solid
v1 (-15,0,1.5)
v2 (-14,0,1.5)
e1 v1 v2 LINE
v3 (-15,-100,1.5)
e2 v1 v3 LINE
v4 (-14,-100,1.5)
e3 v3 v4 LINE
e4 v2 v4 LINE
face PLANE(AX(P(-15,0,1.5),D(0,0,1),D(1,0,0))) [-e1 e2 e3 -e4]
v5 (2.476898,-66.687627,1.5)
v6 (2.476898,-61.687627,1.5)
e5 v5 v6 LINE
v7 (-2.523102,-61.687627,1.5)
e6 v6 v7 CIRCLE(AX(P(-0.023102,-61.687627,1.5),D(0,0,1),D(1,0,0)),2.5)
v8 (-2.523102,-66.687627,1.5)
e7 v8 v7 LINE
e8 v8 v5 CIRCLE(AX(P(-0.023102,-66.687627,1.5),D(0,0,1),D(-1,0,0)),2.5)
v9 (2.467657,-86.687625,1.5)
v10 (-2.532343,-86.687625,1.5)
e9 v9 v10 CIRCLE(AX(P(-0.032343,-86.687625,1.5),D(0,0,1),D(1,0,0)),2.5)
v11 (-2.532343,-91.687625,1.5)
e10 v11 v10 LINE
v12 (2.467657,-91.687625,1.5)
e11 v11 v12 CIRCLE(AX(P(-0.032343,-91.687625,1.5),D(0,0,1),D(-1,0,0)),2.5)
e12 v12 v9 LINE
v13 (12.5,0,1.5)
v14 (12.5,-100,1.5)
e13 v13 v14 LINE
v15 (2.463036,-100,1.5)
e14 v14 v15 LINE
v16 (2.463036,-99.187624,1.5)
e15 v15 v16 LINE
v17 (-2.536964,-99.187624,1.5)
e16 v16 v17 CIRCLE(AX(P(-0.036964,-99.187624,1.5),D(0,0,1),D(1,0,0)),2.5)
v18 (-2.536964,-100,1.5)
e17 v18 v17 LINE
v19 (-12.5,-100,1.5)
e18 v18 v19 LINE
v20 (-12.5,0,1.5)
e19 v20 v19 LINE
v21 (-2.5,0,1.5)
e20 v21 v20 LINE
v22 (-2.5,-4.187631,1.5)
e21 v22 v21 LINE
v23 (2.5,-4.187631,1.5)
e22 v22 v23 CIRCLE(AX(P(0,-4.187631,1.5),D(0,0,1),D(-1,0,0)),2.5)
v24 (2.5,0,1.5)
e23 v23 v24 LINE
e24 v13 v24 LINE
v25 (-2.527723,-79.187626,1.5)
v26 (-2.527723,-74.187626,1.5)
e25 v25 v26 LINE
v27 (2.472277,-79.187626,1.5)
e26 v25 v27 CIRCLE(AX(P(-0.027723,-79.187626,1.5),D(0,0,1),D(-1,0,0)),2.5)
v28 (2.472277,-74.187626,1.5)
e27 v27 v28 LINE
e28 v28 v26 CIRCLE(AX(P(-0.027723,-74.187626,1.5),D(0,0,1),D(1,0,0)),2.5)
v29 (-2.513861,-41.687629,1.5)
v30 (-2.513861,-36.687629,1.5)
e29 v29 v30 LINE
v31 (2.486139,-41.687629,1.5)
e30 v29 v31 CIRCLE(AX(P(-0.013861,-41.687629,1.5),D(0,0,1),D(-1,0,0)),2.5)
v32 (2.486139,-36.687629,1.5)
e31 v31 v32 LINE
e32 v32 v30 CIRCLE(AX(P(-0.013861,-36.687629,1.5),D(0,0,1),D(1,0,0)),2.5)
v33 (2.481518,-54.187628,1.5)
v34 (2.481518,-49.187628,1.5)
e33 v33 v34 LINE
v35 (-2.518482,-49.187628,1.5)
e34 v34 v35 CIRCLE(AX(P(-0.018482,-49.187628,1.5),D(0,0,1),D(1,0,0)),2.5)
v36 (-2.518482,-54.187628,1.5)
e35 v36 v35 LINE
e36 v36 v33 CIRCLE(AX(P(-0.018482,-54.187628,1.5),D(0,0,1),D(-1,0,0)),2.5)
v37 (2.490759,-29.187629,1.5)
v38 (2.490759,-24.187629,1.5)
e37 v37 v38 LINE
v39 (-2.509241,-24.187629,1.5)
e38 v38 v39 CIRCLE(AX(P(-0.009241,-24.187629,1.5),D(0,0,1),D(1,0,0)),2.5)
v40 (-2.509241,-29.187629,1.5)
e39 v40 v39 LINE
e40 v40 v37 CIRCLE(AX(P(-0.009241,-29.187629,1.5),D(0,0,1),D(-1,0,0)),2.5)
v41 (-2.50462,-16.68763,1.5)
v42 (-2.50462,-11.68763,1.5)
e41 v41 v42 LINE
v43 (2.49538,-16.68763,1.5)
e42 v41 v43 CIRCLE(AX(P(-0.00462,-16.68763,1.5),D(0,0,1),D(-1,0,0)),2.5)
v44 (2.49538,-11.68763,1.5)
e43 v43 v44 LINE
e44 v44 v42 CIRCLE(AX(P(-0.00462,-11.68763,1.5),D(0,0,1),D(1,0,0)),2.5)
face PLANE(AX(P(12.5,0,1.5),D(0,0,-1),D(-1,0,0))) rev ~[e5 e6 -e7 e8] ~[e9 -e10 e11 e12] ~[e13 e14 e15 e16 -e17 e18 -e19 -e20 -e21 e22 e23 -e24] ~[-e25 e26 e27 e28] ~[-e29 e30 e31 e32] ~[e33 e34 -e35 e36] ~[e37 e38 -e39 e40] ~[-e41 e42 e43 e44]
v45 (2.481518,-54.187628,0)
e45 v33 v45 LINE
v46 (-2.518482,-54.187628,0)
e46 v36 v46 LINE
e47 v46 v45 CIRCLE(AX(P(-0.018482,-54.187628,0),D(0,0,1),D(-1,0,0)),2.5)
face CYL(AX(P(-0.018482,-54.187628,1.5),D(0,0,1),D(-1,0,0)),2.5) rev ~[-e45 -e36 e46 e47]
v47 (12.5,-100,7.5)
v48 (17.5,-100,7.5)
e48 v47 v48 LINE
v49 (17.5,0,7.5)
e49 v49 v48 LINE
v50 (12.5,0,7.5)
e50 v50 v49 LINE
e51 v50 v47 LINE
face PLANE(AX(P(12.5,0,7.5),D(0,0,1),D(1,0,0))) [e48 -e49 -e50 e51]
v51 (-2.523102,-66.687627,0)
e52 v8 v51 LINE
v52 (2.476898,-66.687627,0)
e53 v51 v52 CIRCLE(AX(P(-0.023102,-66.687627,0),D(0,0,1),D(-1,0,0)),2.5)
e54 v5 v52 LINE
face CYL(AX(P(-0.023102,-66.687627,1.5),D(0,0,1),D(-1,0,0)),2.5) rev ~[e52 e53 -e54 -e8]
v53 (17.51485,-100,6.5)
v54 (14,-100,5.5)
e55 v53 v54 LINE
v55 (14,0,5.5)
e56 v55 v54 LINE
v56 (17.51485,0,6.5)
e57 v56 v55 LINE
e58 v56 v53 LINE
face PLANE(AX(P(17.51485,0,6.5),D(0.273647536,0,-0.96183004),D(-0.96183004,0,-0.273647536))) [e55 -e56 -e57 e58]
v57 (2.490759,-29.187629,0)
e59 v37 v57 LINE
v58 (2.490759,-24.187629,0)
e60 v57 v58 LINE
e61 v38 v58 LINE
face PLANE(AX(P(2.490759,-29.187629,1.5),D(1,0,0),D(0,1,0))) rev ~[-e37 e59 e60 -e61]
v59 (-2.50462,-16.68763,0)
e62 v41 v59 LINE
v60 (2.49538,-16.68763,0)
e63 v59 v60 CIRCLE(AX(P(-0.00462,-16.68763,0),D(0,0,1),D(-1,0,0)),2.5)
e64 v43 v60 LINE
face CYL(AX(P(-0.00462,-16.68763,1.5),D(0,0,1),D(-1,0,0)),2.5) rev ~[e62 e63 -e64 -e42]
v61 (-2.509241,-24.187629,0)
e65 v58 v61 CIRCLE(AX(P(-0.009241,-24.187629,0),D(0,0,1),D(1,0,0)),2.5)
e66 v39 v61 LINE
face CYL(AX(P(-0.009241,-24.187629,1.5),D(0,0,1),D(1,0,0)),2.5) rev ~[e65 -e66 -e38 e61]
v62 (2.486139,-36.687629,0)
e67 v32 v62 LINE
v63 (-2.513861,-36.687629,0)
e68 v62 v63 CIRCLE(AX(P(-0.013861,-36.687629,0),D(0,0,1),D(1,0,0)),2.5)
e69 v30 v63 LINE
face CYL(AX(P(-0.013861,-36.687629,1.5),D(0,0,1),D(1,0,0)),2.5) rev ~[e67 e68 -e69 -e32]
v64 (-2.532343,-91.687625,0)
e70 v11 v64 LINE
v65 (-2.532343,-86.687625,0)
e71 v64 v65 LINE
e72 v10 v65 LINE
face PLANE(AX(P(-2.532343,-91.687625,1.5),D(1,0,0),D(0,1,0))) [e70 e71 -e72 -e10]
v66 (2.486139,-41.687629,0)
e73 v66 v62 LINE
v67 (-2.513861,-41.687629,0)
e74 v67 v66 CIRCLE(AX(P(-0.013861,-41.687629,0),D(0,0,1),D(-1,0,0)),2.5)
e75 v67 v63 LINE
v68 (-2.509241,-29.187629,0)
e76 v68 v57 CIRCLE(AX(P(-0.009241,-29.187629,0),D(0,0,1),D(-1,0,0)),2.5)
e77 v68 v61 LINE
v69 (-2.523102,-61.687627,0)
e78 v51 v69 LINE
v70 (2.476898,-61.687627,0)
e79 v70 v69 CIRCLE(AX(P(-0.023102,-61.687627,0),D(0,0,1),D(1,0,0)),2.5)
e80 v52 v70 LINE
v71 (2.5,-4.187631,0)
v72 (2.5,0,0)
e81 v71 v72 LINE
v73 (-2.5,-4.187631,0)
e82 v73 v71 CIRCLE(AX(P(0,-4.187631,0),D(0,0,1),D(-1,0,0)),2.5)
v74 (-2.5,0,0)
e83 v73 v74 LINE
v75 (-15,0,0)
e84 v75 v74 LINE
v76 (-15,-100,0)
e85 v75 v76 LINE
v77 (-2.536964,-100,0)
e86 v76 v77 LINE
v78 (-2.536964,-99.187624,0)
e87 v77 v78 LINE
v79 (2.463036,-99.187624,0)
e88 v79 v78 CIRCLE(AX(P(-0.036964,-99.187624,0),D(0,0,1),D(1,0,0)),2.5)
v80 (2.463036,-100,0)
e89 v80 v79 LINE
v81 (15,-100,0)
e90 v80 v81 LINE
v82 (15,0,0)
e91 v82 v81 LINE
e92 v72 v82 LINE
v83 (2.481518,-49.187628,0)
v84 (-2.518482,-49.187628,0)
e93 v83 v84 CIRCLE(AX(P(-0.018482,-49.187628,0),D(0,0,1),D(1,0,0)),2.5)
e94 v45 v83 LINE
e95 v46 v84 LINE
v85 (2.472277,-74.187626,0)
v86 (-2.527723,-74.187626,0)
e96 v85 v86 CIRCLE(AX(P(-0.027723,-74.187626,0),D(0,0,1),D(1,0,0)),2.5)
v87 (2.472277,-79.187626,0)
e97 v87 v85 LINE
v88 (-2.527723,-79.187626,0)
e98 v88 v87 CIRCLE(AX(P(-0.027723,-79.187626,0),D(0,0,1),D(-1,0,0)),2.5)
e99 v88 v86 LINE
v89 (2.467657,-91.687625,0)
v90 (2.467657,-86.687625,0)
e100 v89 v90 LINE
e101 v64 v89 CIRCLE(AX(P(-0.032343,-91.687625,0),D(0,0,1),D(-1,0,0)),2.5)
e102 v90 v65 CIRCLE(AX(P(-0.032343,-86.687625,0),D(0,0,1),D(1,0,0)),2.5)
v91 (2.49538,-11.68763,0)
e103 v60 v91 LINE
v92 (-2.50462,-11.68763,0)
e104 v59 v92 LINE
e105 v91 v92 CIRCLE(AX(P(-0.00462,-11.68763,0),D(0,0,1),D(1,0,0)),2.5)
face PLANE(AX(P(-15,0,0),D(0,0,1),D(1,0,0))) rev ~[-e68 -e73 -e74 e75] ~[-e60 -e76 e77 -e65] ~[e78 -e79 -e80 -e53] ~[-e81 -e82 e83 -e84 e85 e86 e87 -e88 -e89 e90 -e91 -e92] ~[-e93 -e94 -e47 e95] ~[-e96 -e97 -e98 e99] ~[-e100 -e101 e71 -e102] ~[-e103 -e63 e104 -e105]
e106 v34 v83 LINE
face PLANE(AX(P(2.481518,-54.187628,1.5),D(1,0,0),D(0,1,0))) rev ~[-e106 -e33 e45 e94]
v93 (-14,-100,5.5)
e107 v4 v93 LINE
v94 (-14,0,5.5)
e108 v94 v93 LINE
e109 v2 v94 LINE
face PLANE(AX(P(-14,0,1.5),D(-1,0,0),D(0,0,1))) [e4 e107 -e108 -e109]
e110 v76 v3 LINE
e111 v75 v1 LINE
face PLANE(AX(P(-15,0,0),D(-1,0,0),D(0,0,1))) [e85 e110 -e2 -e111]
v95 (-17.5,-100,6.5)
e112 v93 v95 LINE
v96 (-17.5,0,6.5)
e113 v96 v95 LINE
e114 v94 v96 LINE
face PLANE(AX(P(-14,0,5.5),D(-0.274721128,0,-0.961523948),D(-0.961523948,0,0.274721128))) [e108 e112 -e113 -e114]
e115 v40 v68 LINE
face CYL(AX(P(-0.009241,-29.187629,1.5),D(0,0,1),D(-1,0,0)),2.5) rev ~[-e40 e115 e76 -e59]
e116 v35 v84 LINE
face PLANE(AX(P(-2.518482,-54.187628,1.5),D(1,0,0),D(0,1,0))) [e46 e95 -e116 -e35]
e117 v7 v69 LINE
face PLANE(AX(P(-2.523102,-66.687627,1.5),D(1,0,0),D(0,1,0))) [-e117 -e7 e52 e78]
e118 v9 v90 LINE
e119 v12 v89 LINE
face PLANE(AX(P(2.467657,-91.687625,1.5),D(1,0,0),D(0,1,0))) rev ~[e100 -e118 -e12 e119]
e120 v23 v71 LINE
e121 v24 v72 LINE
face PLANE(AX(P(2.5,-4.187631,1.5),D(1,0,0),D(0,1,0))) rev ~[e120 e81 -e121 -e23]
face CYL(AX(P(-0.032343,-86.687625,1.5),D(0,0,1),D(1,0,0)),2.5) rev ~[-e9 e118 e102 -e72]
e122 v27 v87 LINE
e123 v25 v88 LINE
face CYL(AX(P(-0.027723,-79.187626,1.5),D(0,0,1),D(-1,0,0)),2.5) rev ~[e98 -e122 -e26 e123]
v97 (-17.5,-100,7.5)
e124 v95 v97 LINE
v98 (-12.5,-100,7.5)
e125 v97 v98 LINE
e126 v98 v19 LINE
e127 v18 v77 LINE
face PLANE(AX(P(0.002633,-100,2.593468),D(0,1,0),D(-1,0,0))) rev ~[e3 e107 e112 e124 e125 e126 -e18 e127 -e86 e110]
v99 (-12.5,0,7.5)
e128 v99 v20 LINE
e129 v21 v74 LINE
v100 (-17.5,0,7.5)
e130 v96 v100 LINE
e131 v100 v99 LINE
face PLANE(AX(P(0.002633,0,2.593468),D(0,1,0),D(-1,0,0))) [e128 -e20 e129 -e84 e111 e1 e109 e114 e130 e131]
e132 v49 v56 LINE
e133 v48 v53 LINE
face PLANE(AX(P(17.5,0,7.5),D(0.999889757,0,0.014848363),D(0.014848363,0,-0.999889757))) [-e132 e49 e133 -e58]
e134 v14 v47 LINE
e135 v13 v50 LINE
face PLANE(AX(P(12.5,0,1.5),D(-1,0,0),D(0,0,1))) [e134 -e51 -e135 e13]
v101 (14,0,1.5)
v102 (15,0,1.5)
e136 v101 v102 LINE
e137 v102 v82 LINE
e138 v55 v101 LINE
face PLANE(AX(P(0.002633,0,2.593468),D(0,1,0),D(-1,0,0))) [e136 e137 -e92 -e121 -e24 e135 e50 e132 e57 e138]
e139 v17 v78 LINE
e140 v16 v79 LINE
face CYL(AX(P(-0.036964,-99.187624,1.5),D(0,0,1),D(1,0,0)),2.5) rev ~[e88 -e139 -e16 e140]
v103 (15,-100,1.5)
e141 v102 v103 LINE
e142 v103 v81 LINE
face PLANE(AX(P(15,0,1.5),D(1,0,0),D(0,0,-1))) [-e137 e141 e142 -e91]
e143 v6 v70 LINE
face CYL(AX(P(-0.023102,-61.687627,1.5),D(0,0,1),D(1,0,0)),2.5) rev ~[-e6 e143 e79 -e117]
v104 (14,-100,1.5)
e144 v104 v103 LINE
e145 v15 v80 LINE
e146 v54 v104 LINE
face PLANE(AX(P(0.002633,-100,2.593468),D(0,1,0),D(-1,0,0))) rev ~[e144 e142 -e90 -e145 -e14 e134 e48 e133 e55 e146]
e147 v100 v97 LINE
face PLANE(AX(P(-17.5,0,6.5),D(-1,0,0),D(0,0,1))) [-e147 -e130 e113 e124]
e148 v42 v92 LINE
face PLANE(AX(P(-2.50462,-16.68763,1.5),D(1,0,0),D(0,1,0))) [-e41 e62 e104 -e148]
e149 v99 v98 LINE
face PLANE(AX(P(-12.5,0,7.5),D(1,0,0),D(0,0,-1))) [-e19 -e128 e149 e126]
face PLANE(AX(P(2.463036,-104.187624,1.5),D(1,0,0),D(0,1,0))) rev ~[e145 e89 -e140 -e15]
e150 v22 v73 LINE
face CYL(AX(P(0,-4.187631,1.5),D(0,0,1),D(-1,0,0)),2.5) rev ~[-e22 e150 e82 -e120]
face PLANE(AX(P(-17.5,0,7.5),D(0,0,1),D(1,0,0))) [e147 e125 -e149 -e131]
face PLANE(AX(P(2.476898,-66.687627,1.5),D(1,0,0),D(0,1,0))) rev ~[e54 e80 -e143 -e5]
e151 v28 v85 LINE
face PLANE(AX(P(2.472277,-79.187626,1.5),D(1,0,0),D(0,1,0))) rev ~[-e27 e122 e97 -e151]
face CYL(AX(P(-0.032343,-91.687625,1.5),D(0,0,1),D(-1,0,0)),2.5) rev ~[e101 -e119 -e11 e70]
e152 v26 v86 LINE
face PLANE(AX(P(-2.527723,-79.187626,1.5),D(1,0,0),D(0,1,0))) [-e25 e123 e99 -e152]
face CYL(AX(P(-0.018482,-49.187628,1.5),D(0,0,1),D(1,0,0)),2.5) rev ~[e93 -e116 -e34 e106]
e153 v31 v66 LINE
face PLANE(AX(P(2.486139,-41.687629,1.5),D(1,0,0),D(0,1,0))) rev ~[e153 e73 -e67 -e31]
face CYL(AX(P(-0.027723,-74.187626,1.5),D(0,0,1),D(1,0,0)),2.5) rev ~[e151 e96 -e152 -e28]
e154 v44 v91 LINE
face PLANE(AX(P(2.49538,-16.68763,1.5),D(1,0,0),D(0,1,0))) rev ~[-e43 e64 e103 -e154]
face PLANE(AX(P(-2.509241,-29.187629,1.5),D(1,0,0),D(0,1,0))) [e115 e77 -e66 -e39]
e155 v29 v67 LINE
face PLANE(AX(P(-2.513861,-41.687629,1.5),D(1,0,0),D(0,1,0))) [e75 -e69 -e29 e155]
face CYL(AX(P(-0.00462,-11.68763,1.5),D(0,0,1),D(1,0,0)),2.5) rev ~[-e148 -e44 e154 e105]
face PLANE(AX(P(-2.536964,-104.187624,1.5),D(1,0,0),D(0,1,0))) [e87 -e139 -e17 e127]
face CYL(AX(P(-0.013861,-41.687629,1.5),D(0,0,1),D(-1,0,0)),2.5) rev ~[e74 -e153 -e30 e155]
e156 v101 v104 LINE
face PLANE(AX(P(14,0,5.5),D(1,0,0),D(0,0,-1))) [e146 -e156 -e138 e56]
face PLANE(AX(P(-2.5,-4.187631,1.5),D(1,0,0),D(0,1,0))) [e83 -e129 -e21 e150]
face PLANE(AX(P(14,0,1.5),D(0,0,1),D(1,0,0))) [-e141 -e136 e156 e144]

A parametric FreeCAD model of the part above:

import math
import FreeCAD as App
import Part
import Sketcher

V = App.Vector
Q = App.Units.Quantity


def add_polygon(sketch, points):
    """Adds a closed chain of lines whose ends are joined by coincident constraints."""
    first, n = sketch.GeometryCount, len(points)
    for a, b in zip(points, points[1:] + points[:1]):
        sketch.addGeometry(Part.LineSegment(App.Vector(*a, 0), App.Vector(*b, 0)), False)
    for i in range(n):
        sketch.addConstraint(Sketcher.Constraint("Coincident", first + i, 2, first + (i + 1) % n, 1))

doc = App.newDocument("Part")
body = doc.addObject("PartDesign::Body", "Body")

# Sketch on XZ plane
sketch1 = doc.addObject("Sketcher::SketchObject", "Sketch")
body.addObject(sketch1)
sketch1.AttachmentSupport = (doc.XZ_Plane, [""])
sketch1.MapMode = "FlatFace"
add_polygon(sketch1, [(-15, 0), (15, 0), (15, 1.5), (14, 1.5), (14, 5.5), (17.51485, 6.5), (17.5, 7.5), (12.5, 7.5), (12.5, 1.5), (-12.5, 1.5), (-12.5, 7.5), (-17.5, 7.5), (-17.5, 6.5), (-14, 5.5), (-14, 1.5), (-15, 1.5)])  # lines 0-15
sketch1.addConstraint([
    Sketcher.Constraint("Horizontal", 0),
    Sketcher.Constraint("Vertical", 1),
    Sketcher.Constraint("Horizontal", 2),
    Sketcher.Constraint("Vertical", 3),
    Sketcher.Constraint("Horizontal", 6),
    Sketcher.Constraint("Vertical", 7),
    Sketcher.Constraint("Horizontal", 8),
    Sketcher.Constraint("Vertical", 9),
    Sketcher.Constraint("Horizontal", 10),
    Sketcher.Constraint("Vertical", 11),
    Sketcher.Constraint("Vertical", 13),
    Sketcher.Constraint("Horizontal", 14),
    Sketcher.Constraint("Vertical", 15),
    Sketcher.Constraint("Symmetric", 0, 2, 15, 2, -1, 1),
    Sketcher.Constraint("Symmetric", 6, 2, 9, 2, -2),
    Sketcher.Constraint("Symmetric", 3, 2, 12, 2, -2),
    Sketcher.Constraint("Horizontal", 2, 2, 7, 2),
    Sketcher.Constraint("Horizontal", 4, 2, 11, 2),
    Sketcher.Constraint("Horizontal", 8, 2, 13, 2),
    Sketcher.Constraint("Equal", 6, 10),
    Sketcher.Constraint("Equal", 14, 11),
    Sketcher.Constraint("DistanceX", 0, 1, 0, 2, Q("30 mm")),
    Sketcher.Constraint("DistanceX", 2, 2, 2, 1, Q("1 mm")),
    Sketcher.Constraint("DistanceX", 6, 2, 6, 1, Q("5 mm")),
    Sketcher.Constraint("DistanceX", 8, 2, 8, 1, Q("25 mm")),
    Sketcher.Constraint("DistanceY", 3, 1, 3, 2, Q("4 mm")),
    Sketcher.Constraint("DistanceY", 7, 2, 7, 1, Q("6 mm")),
    Sketcher.Constraint("DistanceY", 1, 1, 1, 2, Q("1.5 mm")),
    Sketcher.Constraint("Distance", 5, Q("1.00011 mm")),
])
pad1 = doc.addObject("PartDesign::Pad", "Pad")
body.addObject(pad1)
pad1.Profile = sketch1
pad1.Length = 100

# Sketch on XY plane
sketch2 = doc.addObject("Sketcher::SketchObject", "Sketch001")
body.addObject(sketch2)
sketch2.AttachmentSupport = (doc.XY_Plane, [""])
sketch2.MapMode = "FlatFace"
sketch2.AttachmentOffset = App.Placement(V(0, 0, 1.5), App.Rotation())
sketch2.addGeometry([
    Part.ArcOfCircle(Part.Circle(V(0, -4.187631, 0), V(0, 0, 1), 2.5), math.radians(180), math.radians(360)),  # 0
    Part.LineSegment(V(2.5, -4.187631, 0), V(2.5, 0.812369, 0)),  # 1
    Part.ArcOfCircle(Part.Circle(V(0, 0.812369, 0), V(0, 0, 1), 2.5), math.radians(0), math.radians(180)),  # 2
    Part.LineSegment(V(-2.5, 0.812369, 0), V(-2.5, -4.187631, 0)),  # 3
    Part.ArcOfCircle(Part.Circle(V(-0.00462, -16.68763, 0), V(0, 0, 1), 2.5), math.radians(180), math.radians(360)),  # 4
    Part.LineSegment(V(2.49538, -16.68763, 0), V(2.49538, -11.68763, 0)),  # 5
    Part.ArcOfCircle(Part.Circle(V(-0.00462, -11.68763, 0), V(0, 0, 1), 2.5), math.radians(0), math.radians(180)),  # 6
    Part.LineSegment(V(-2.50462, -11.68763, 0), V(-2.50462, -16.68763, 0)),  # 7
    Part.ArcOfCircle(Part.Circle(V(-0.009241, -29.187629, 0), V(0, 0, 1), 2.5), math.radians(180), math.radians(360)),  # 8
    Part.LineSegment(V(2.490759, -29.187629, 0), V(2.490759, -24.187629, 0)),  # 9
    Part.ArcOfCircle(Part.Circle(V(-0.009241, -24.187629, 0), V(0, 0, 1), 2.5), math.radians(0), math.radians(180)),  # 10
    Part.LineSegment(V(-2.509241, -24.187629, 0), V(-2.509241, -29.187629, 0)),  # 11
    Part.ArcOfCircle(Part.Circle(V(-0.013861, -41.687629, 0), V(0, 0, 1), 2.5), math.radians(180), math.radians(360)),  # 12
    Part.LineSegment(V(2.486139, -41.687629, 0), V(2.486139, -36.687629, 0)),  # 13
    Part.ArcOfCircle(Part.Circle(V(-0.013861, -36.687629, 0), V(0, 0, 1), 2.5), math.radians(0), math.radians(180)),  # 14
    Part.LineSegment(V(-2.513861, -36.687629, 0), V(-2.513861, -41.687629, 0)),  # 15
    Part.ArcOfCircle(Part.Circle(V(-0.018482, -54.187628, 0), V(0, 0, 1), 2.5), math.radians(180), math.radians(360)),  # 16
    Part.LineSegment(V(2.481518, -54.187628, 0), V(2.481518, -49.187628, 0)),  # 17
    Part.ArcOfCircle(Part.Circle(V(-0.018482, -49.187628, 0), V(0, 0, 1), 2.5), math.radians(0), math.radians(180)),  # 18
    Part.LineSegment(V(-2.518482, -49.187628, 0), V(-2.518482, -54.187628, 0)),  # 19
    Part.ArcOfCircle(Part.Circle(V(-0.023102, -66.687627, 0), V(0, 0, 1), 2.5), math.radians(180), math.radians(360)),  # 20
    Part.LineSegment(V(2.476898, -66.687627, 0), V(2.476898, -61.687627, 0)),  # 21
    Part.ArcOfCircle(Part.Circle(V(-0.023102, -61.687627, 0), V(0, 0, 1), 2.5), math.radians(0), math.radians(180)),  # 22
    Part.LineSegment(V(-2.523102, -61.687627, 0), V(-2.523102, -66.687627, 0)),  # 23
    Part.ArcOfCircle(Part.Circle(V(-0.027723, -79.187626, 0), V(0, 0, 1), 2.5), math.radians(180), math.radians(360)),  # 24
    Part.LineSegment(V(2.472277, -79.187626, 0), V(2.472277, -74.187626, 0)),  # 25
    Part.ArcOfCircle(Part.Circle(V(-0.027723, -74.187626, 0), V(0, 0, 1), 2.5), math.radians(0), math.radians(180)),  # 26
    Part.LineSegment(V(-2.527723, -74.187626, 0), V(-2.527723, -79.187626, 0)),  # 27
    Part.ArcOfCircle(Part.Circle(V(-0.032343, -91.687625, 0), V(0, 0, 1), 2.5), math.radians(180), math.radians(360)),  # 28
    Part.LineSegment(V(2.467657, -91.687625, 0), V(2.467657, -86.687625, 0)),  # 29
    Part.ArcOfCircle(Part.Circle(V(-0.032343, -86.687625, 0), V(0, 0, 1), 2.5), math.radians(0), math.radians(180)),  # 30
    Part.LineSegment(V(-2.532343, -86.687625, 0), V(-2.532343, -91.687625, 0)),  # 31
    Part.ArcOfCircle(Part.Circle(V(-0.036964, -104.187624, 0), V(0, 0, 1), 2.5), math.radians(180), math.radians(360)),  # 32
    Part.LineSegment(V(2.463036, -104.187624, 0), V(2.463036, -99.187624, 0)),  # 33
    Part.ArcOfCircle(Part.Circle(V(-0.036964, -99.187624, 0), V(0, 0, 1), 2.5), math.radians(0), math.radians(180)),  # 34
    Part.LineSegment(V(-2.536964, -99.187624, 0), V(-2.536964, -104.187624, 0)),  # 35
    Part.ArcOfCircle(Part.Circle(V(-0.041584, -116.687623, 0), V(0, 0, 1), 2.5), math.radians(180), math.radians(360)),  # 36
    Part.LineSegment(V(2.458416, -116.687623, 0), V(2.458416, -111.687623, 0)),  # 37
    Part.ArcOfCircle(Part.Circle(V(-0.041584, -111.687623, 0), V(0, 0, 1), 2.5), math.radians(0), math.radians(180)),  # 38
    Part.LineSegment(V(-2.541584, -111.687623, 0), V(-2.541584, -116.687623, 0)),  # 39
], False)
sketch2.addConstraint([
    Sketcher.Constraint("Tangent", 0, 2, 1, 1),
    Sketcher.Constraint("Tangent", 1, 2, 2, 1),
    Sketcher.Constraint("Tangent", 2, 2, 3, 1),
    Sketcher.Constraint("Tangent", 3, 2, 0, 1),
    Sketcher.Constraint("Tangent", 4, 2, 5, 1),
    Sketcher.Constraint("Tangent", 5, 2, 6, 1),
    Sketcher.Constraint("Tangent", 6, 2, 7, 1),
    Sketcher.Constraint("Tangent", 7, 2, 4, 1),
    Sketcher.Constraint("Tangent", 8, 2, 9, 1),
    Sketcher.Constraint("Tangent", 9, 2, 10, 1),
    Sketcher.Constraint("Tangent", 10, 2, 11, 1),
    Sketcher.Constraint("Tangent", 11, 2, 8, 1),
    Sketcher.Constraint("Tangent", 12, 2, 13, 1),
    Sketcher.Constraint("Tangent", 13, 2, 14, 1),
    Sketcher.Constraint("Tangent", 14, 2, 15, 1),
    Sketcher.Constraint("Tangent", 15, 2, 12, 1),
    Sketcher.Constraint("Tangent", 16, 2, 17, 1),
    Sketcher.Constraint("Tangent", 17, 2, 18, 1),
    Sketcher.Constraint("Tangent", 18, 2, 19, 1),
    Sketcher.Constraint("Tangent", 19, 2, 16, 1),
    Sketcher.Constraint("Tangent", 20, 2, 21, 1),
    Sketcher.Constraint("Tangent", 21, 2, 22, 1),
    Sketcher.Constraint("Tangent", 22, 2, 23, 1),
    Sketcher.Constraint("Tangent", 23, 2, 20, 1),
    Sketcher.Constraint("Tangent", 24, 2, 25, 1),
    Sketcher.Constraint("Tangent", 25, 2, 26, 1),
    Sketcher.Constraint("Tangent", 26, 2, 27, 1),
    Sketcher.Constraint("Tangent", 27, 2, 24, 1),
    Sketcher.Constraint("Tangent", 28, 2, 29, 1),
    Sketcher.Constraint("Tangent", 29, 2, 30, 1),
    Sketcher.Constraint("Tangent", 30, 2, 31, 1),
    Sketcher.Constraint("Tangent", 31, 2, 28, 1),
    Sketcher.Constraint("Tangent", 32, 2, 33, 1),
    Sketcher.Constraint("Tangent", 33, 2, 34, 1),
    Sketcher.Constraint("Tangent", 34, 2, 35, 1),
    Sketcher.Constraint("Tangent", 35, 2, 32, 1),
    Sketcher.Constraint("Tangent", 36, 2, 37, 1),
    Sketcher.Constraint("Tangent", 37, 2, 38, 1),
    Sketcher.Constraint("Tangent", 38, 2, 39, 1),
    Sketcher.Constraint("Tangent", 39, 2, 36, 1),
    Sketcher.Constraint("Vertical", 1),
    Sketcher.Constraint("Vertical", 3),
    Sketcher.Constraint("Vertical", 5),
    Sketcher.Constraint("Vertical", 7),
    Sketcher.Constraint("Vertical", 9),
    Sketcher.Constraint("Vertical", 11),
    Sketcher.Constraint("Vertical", 13),
    Sketcher.Constraint("Vertical", 15),
    Sketcher.Constraint("Vertical", 17),
    Sketcher.Constraint("Vertical", 19),
    Sketcher.Constraint("Vertical", 21),
    Sketcher.Constraint("Vertical", 23),
    Sketcher.Constraint("Vertical", 25),
    Sketcher.Constraint("Vertical", 27),
    Sketcher.Constraint("Vertical", 29),
    Sketcher.Constraint("Vertical", 31),
    Sketcher.Constraint("Vertical", 33),
    Sketcher.Constraint("Vertical", 35),
    Sketcher.Constraint("Vertical", 37),
    Sketcher.Constraint("Vertical", 39),
    Sketcher.Constraint("Equal", 2, 4),
    Sketcher.Constraint("Equal", 6, 8),
    Sketcher.Constraint("Equal", 10, 12),
    Sketcher.Constraint("Equal", 14, 16),
    Sketcher.Constraint("Equal", 18, 20),
    Sketcher.Constraint("Equal", 22, 24),
    Sketcher.Constraint("Equal", 26, 28),
    Sketcher.Constraint("Equal", 30, 32),
    Sketcher.Constraint("Equal", 34, 36),
    Sketcher.Constraint("PointOnObject", 0, 3, -2),
    Sketcher.Constraint("Equal", 3, 5),
    Sketcher.Constraint("Equal", 7, 9),
    Sketcher.Constraint("Equal", 11, 13),
    Sketcher.Constraint("Equal", 15, 17),
    Sketcher.Constraint("Equal", 19, 21),
    Sketcher.Constraint("Equal", 23, 25),
    Sketcher.Constraint("Equal", 27, 29),
    Sketcher.Constraint("Equal", 31, 33),
    Sketcher.Constraint("Equal", 35, 37),
    Sketcher.Constraint("Radius", 0, Q("2.5 mm")),
    Sketcher.Constraint("DistanceY", 1, 1, 1, 2, Q("5 mm")),
    Sketcher.Constraint("DistanceY", 8, 3, 0, 3, Q("24.999998 mm")),
    Sketcher.Constraint("DistanceY", 12, 3, 4, 3, Q("24.999999 mm")),
    Sketcher.Constraint("DistanceY", 16, 3, 8, 3, Q("24.999999 mm")),
    Sketcher.Constraint("DistanceY", 20, 3, 12, 3, Q("24.999998 mm")),
    Sketcher.Constraint("DistanceY", 32, 3, 24, 3, Q("24.999998 mm")),
    Sketcher.Constraint("DistanceY", 36, 3, 28, 3, Q("24.999998 mm")),
    Sketcher.Constraint("DistanceY", 4, 3, 0, 3, Q("12.499999 mm")),
    Sketcher.Constraint("DistanceY", 24, 3, 20, 3, Q("12.499999 mm")),
    Sketcher.Constraint("DistanceY", 28, 3, 24, 3, Q("12.499999 mm")),
    Sketcher.Constraint("DistanceY", 0, 3, -1, 1, Q("4.187631 mm")),
    Sketcher.Constraint("DistanceX", 4, 3, -1, 1, Q("0.00462 mm")),
    Sketcher.Constraint("DistanceX", 8, 3, -1, 1, Q("0.009241 mm")),
    Sketcher.Constraint("DistanceX", 12, 3, -1, 1, Q("0.013861 mm")),
    Sketcher.Constraint("DistanceX", 16, 3, -1, 1, Q("0.018482 mm")),
    Sketcher.Constraint("DistanceX", 20, 3, 16, 3, Q("0.00462 mm")),
    Sketcher.Constraint("DistanceX", 24, 3, 20, 3, Q("0.004621 mm")),
    Sketcher.Constraint("DistanceX", 28, 3, 24, 3, Q("0.00462 mm")),
    Sketcher.Constraint("DistanceX", 32, 3, 28, 3, Q("0.004621 mm")),
    Sketcher.Constraint("DistanceX", 36, 3, 32, 3, Q("0.00462 mm")),
])
pocket1 = doc.addObject("PartDesign::Pocket", "Pocket")
body.addObject(pocket1)
pocket1.Profile = sketch2
pocket1.Length = 2

# Sketch on XY plane
sketch3 = doc.addObject("Sketcher::SketchObject", "Sketch002")
body.addObject(sketch3)
sketch3.AttachmentSupport = (doc.XY_Plane, [""])
sketch3.MapMode = "FlatFace"
sketch3.AttachmentOffset = App.Placement(V(0, 0, 1.5), App.Rotation())
sketch3.addGeometry([
    Part.ArcOfCircle(Part.Circle(V(0, -4.187631, 0), V(0, 0, 1), 2.5), math.radians(180), math.radians(360)),  # 0
    Part.LineSegment(V(2.5, -4.187631, 0), V(2.5, 0.812369, 0)),  # 1
    Part.ArcOfCircle(Part.Circle(V(0, 0.812369, 0), V(0, 0, 1), 2.5), math.radians(0), math.radians(180)),  # 2
    Part.LineSegment(V(-2.5, 0.812369, 0), V(-2.5, -4.187631, 0)),  # 3
    Part.ArcOfCircle(Part.Circle(V(-0.00462, -16.68763, 0), V(0, 0, 1), 2.5), math.radians(180), math.radians(360)),  # 4
    Part.LineSegment(V(2.49538, -16.68763, 0), V(2.49538, -11.68763, 0)),  # 5
    Part.ArcOfCircle(Part.Circle(V(-0.00462, -11.68763, 0), V(0, 0, 1), 2.5), math.radians(0), math.radians(180)),  # 6
    Part.LineSegment(V(-2.50462, -11.68763, 0), V(-2.50462, -16.68763, 0)),  # 7
    Part.ArcOfCircle(Part.Circle(V(-0.009241, -29.187629, 0), V(0, 0, 1), 2.5), math.radians(180), math.radians(360)),  # 8
    Part.LineSegment(V(2.490759, -29.187629, 0), V(2.490759, -24.187629, 0)),  # 9
    Part.ArcOfCircle(Part.Circle(V(-0.009241, -24.187629, 0), V(0, 0, 1), 2.5), math.radians(0), math.radians(180)),  # 10
    Part.LineSegment(V(-2.509241, -24.187629, 0), V(-2.509241, -29.187629, 0)),  # 11
    Part.ArcOfCircle(Part.Circle(V(-0.013861, -41.687629, 0), V(0, 0, 1), 2.5), math.radians(180), math.radians(360)),  # 12
    Part.LineSegment(V(2.486139, -41.687629, 0), V(2.486139, -36.687629, 0)),  # 13
    Part.ArcOfCircle(Part.Circle(V(-0.013861, -36.687629, 0), V(0, 0, 1), 2.5), math.radians(0), math.radians(180)),  # 14
    Part.LineSegment(V(-2.513861, -36.687629, 0), V(-2.513861, -41.687629, 0)),  # 15
    Part.ArcOfCircle(Part.Circle(V(-0.018482, -54.187628, 0), V(0, 0, 1), 2.5), math.radians(180), math.radians(360)),  # 16
    Part.LineSegment(V(2.481518, -54.187628, 0), V(2.481518, -49.187628, 0)),  # 17
    Part.ArcOfCircle(Part.Circle(V(-0.018482, -49.187628, 0), V(0, 0, 1), 2.5), math.radians(0), math.radians(180)),  # 18
    Part.LineSegment(V(-2.518482, -49.187628, 0), V(-2.518482, -54.187628, 0)),  # 19
    Part.ArcOfCircle(Part.Circle(V(-0.023102, -66.687627, 0), V(0, 0, 1), 2.5), math.radians(180), math.radians(360)),  # 20
    Part.LineSegment(V(2.476898, -66.687627, 0), V(2.476898, -61.687627, 0)),  # 21
    Part.ArcOfCircle(Part.Circle(V(-0.023102, -61.687627, 0), V(0, 0, 1), 2.5), math.radians(0), math.radians(180)),  # 22
    Part.LineSegment(V(-2.523102, -61.687627, 0), V(-2.523102, -66.687627, 0)),  # 23
    Part.ArcOfCircle(Part.Circle(V(-0.027723, -79.187626, 0), V(0, 0, 1), 2.5), math.radians(180), math.radians(360)),  # 24
    Part.LineSegment(V(2.472277, -79.187626, 0), V(2.472277, -74.187626, 0)),  # 25
    Part.ArcOfCircle(Part.Circle(V(-0.027723, -74.187626, 0), V(0, 0, 1), 2.5), math.radians(0), math.radians(180)),  # 26
    Part.LineSegment(V(-2.527723, -74.187626, 0), V(-2.527723, -79.187626, 0)),  # 27
    Part.ArcOfCircle(Part.Circle(V(-0.032343, -91.687625, 0), V(0, 0, 1), 2.5), math.radians(180), math.radians(360)),  # 28
    Part.LineSegment(V(2.467657, -91.687625, 0), V(2.467657, -86.687625, 0)),  # 29
    Part.ArcOfCircle(Part.Circle(V(-0.032343, -86.687625, 0), V(0, 0, 1), 2.5), math.radians(0), math.radians(180)),  # 30
    Part.LineSegment(V(-2.532343, -86.687625, 0), V(-2.532343, -91.687625, 0)),  # 31
    Part.ArcOfCircle(Part.Circle(V(-0.036964, -104.187624, 0), V(0, 0, 1), 2.5), math.radians(180), math.radians(360)),  # 32
    Part.LineSegment(V(2.463036, -104.187624, 0), V(2.463036, -99.187624, 0)),  # 33
    Part.ArcOfCircle(Part.Circle(V(-0.036964, -99.187624, 0), V(0, 0, 1), 2.5), math.radians(0), math.radians(180)),  # 34
    Part.LineSegment(V(-2.536964, -99.187624, 0), V(-2.536964, -104.187624, 0)),  # 35
    Part.ArcOfCircle(Part.Circle(V(-0.041584, -116.687623, 0), V(0, 0, 1), 2.5), math.radians(180), math.radians(360)),  # 36
    Part.LineSegment(V(2.458416, -116.687623, 0), V(2.458416, -111.687623, 0)),  # 37
    Part.ArcOfCircle(Part.Circle(V(-0.041584, -111.687623, 0), V(0, 0, 1), 2.5), math.radians(0), math.radians(180)),  # 38
    Part.LineSegment(V(-2.541584, -111.687623, 0), V(-2.541584, -116.687623, 0)),  # 39
], False)
sketch3.addConstraint([
    Sketcher.Constraint("Tangent", 0, 2, 1, 1),
    Sketcher.Constraint("Tangent", 1, 2, 2, 1),
    Sketcher.Constraint("Tangent", 2, 2, 3, 1),
    Sketcher.Constraint("Tangent", 3, 2, 0, 1),
    Sketcher.Constraint("Tangent", 4, 2, 5, 1),
    Sketcher.Constraint("Tangent", 5, 2, 6, 1),
    Sketcher.Constraint("Tangent", 6, 2, 7, 1),
    Sketcher.Constraint("Tangent", 7, 2, 4, 1),
    Sketcher.Constraint("Tangent", 8, 2, 9, 1),
    Sketcher.Constraint("Tangent", 9, 2, 10, 1),
    Sketcher.Constraint("Tangent", 10, 2, 11, 1),
    Sketcher.Constraint("Tangent", 11, 2, 8, 1),
    Sketcher.Constraint("Tangent", 12, 2, 13, 1),
    Sketcher.Constraint("Tangent", 13, 2, 14, 1),
    Sketcher.Constraint("Tangent", 14, 2, 15, 1),
    Sketcher.Constraint("Tangent", 15, 2, 12, 1),
    Sketcher.Constraint("Tangent", 16, 2, 17, 1),
    Sketcher.Constraint("Tangent", 17, 2, 18, 1),
    Sketcher.Constraint("Tangent", 18, 2, 19, 1),
    Sketcher.Constraint("Tangent", 19, 2, 16, 1),
    Sketcher.Constraint("Tangent", 20, 2, 21, 1),
    Sketcher.Constraint("Tangent", 21, 2, 22, 1),
    Sketcher.Constraint("Tangent", 22, 2, 23, 1),
    Sketcher.Constraint("Tangent", 23, 2, 20, 1),
    Sketcher.Constraint("Tangent", 24, 2, 25, 1),
    Sketcher.Constraint("Tangent", 25, 2, 26, 1),
    Sketcher.Constraint("Tangent", 26, 2, 27, 1),
    Sketcher.Constraint("Tangent", 27, 2, 24, 1),
    Sketcher.Constraint("Tangent", 28, 2, 29, 1),
    Sketcher.Constraint("Tangent", 29, 2, 30, 1),
    Sketcher.Constraint("Tangent", 30, 2, 31, 1),
    Sketcher.Constraint("Tangent", 31, 2, 28, 1),
    Sketcher.Constraint("Tangent", 32, 2, 33, 1),
    Sketcher.Constraint("Tangent", 33, 2, 34, 1),
    Sketcher.Constraint("Tangent", 34, 2, 35, 1),
    Sketcher.Constraint("Tangent", 35, 2, 32, 1),
    Sketcher.Constraint("Tangent", 36, 2, 37, 1),
    Sketcher.Constraint("Tangent", 37, 2, 38, 1),
    Sketcher.Constraint("Tangent", 38, 2, 39, 1),
    Sketcher.Constraint("Tangent", 39, 2, 36, 1),
    Sketcher.Constraint("Vertical", 1),
    Sketcher.Constraint("Vertical", 3),
    Sketcher.Constraint("Vertical", 5),
    Sketcher.Constraint("Vertical", 7),
    Sketcher.Constraint("Vertical", 9),
    Sketcher.Constraint("Vertical", 11),
    Sketcher.Constraint("Vertical", 13),
    Sketcher.Constraint("Vertical", 15),
    Sketcher.Constraint("Vertical", 17),
    Sketcher.Constraint("Vertical", 19),
    Sketcher.Constraint("Vertical", 21),
    Sketcher.Constraint("Vertical", 23),
    Sketcher.Constraint("Vertical", 25),
    Sketcher.Constraint("Vertical", 27),
    Sketcher.Constraint("Vertical", 29),
    Sketcher.Constraint("Vertical", 31),
    Sketcher.Constraint("Vertical", 33),
    Sketcher.Constraint("Vertical", 35),
    Sketcher.Constraint("Vertical", 37),
    Sketcher.Constraint("Vertical", 39),
    Sketcher.Constraint("Equal", 2, 4),
    Sketcher.Constraint("Equal", 6, 8),
    Sketcher.Constraint("Equal", 10, 12),
    Sketcher.Constraint("Equal", 14, 16),
    Sketcher.Constraint("Equal", 18, 20),
    Sketcher.Constraint("Equal", 22, 24),
    Sketcher.Constraint("Equal", 26, 28),
    Sketcher.Constraint("Equal", 30, 32),
    Sketcher.Constraint("Equal", 34, 36),
    Sketcher.Constraint("PointOnObject", 0, 3, -2),
    Sketcher.Constraint("Equal", 3, 5),
    Sketcher.Constraint("Equal", 7, 9),
    Sketcher.Constraint("Equal", 11, 13),
    Sketcher.Constraint("Equal", 15, 17),
    Sketcher.Constraint("Equal", 19, 21),
    Sketcher.Constraint("Equal", 23, 25),
    Sketcher.Constraint("Equal", 27, 29),
    Sketcher.Constraint("Equal", 31, 33),
    Sketcher.Constraint("Equal", 35, 37),
    Sketcher.Constraint("Radius", 0, Q("2.5 mm")),
    Sketcher.Constraint("DistanceY", 1, 1, 1, 2, Q("5 mm")),
    Sketcher.Constraint("DistanceY", 8, 3, 0, 3, Q("24.999998 mm")),
    Sketcher.Constraint("DistanceY", 12, 3, 4, 3, Q("24.999999 mm")),
    Sketcher.Constraint("DistanceY", 16, 3, 8, 3, Q("24.999999 mm")),
    Sketcher.Constraint("DistanceY", 20, 3, 12, 3, Q("24.999998 mm")),
    Sketcher.Constraint("DistanceY", 32, 3, 24, 3, Q("24.999998 mm")),
    Sketcher.Constraint("DistanceY", 36, 3, 28, 3, Q("24.999998 mm")),
    Sketcher.Constraint("DistanceY", 4, 3, 0, 3, Q("12.499999 mm")),
    Sketcher.Constraint("DistanceY", 24, 3, 20, 3, Q("12.499999 mm")),
    Sketcher.Constraint("DistanceY", 28, 3, 24, 3, Q("12.499999 mm")),
    Sketcher.Constraint("DistanceY", 0, 3, -1, 1, Q("4.187631 mm")),
    Sketcher.Constraint("DistanceX", 4, 3, -1, 1, Q("0.00462 mm")),
    Sketcher.Constraint("DistanceX", 8, 3, -1, 1, Q("0.009241 mm")),
    Sketcher.Constraint("DistanceX", 12, 3, -1, 1, Q("0.013861 mm")),
    Sketcher.Constraint("DistanceX", 16, 3, -1, 1, Q("0.018482 mm")),
    Sketcher.Constraint("DistanceX", 20, 3, 16, 3, Q("0.00462 mm")),
    Sketcher.Constraint("DistanceX", 24, 3, 20, 3, Q("0.004621 mm")),
    Sketcher.Constraint("DistanceX", 28, 3, 24, 3, Q("0.00462 mm")),
    Sketcher.Constraint("DistanceX", 32, 3, 28, 3, Q("0.004621 mm")),
    Sketcher.Constraint("DistanceX", 36, 3, 32, 3, Q("0.00462 mm")),
])
pocket2 = doc.addObject("PartDesign::Pocket", "Pocket001")
body.addObject(pocket2)
pocket2.Profile = sketch3
pocket2.Length = 3

doc.recompute()
